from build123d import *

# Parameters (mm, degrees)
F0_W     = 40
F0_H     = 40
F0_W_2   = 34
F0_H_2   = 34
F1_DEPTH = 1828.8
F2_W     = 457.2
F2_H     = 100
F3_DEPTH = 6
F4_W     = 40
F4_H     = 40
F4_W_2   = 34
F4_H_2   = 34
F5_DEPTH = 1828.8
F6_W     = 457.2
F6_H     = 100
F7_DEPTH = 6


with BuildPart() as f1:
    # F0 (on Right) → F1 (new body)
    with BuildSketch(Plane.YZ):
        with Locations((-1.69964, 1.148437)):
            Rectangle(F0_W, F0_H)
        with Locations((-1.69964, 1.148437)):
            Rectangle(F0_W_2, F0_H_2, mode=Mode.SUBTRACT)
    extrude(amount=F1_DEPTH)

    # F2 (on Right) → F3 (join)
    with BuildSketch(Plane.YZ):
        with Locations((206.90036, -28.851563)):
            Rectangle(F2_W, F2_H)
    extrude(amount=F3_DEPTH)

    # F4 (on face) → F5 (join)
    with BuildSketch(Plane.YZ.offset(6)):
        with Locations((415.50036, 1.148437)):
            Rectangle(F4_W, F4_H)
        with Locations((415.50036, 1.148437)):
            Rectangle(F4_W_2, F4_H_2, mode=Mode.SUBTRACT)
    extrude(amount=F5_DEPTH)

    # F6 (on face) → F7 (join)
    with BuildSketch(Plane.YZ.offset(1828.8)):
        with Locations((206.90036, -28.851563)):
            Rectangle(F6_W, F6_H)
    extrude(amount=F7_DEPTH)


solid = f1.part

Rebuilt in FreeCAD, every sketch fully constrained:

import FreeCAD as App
import Part
import Sketcher

V = App.Vector


def add_polygon(sketch, points):
    """Adds a closed chain of lines whose ends are joined by coincident constraints."""
    first, n = sketch.GeometryCount, len(points)
    for a, b in zip(points, points[1:] + points[:1]):
        sketch.addGeometry(Part.LineSegment(App.Vector(*a, 0), App.Vector(*b, 0)), False)
    for i in range(n):
        sketch.addConstraint(Sketcher.Constraint("Coincident", first + i, 2, first + (i + 1) % n, 1))

doc = App.newDocument("Part")
body = doc.addObject("PartDesign::Body", "Body")

# Sketch on YZ plane
sketch1 = doc.addObject("Sketcher::SketchObject", "Sketch")
body.addObject(sketch1)
sketch1.AttachmentSupport = (doc.YZ_Plane, [""])
sketch1.MapMode = "FlatFace"
add_polygon(sketch1, [(-22, 21), (-22, -19), (18, -19), (18, 21)])  # lines 0-3
add_polygon(sketch1, [(15, -16), (-19, -16), (-19, 18), (15, 18)])  # lines 4-7
sketch1.addConstraint(Sketcher.Constraint("Vertical", 0))
sketch1.addConstraint(Sketcher.Constraint("Horizontal", 1))
sketch1.addConstraint(Sketcher.Constraint("Vertical", 2))
sketch1.addConstraint(Sketcher.Constraint("Horizontal", 3))
sketch1.addConstraint(Sketcher.Constraint("Horizontal", 4))
sketch1.addConstraint(Sketcher.Constraint("Vertical", 5))
sketch1.addConstraint(Sketcher.Constraint("Horizontal", 6))
sketch1.addConstraint(Sketcher.Constraint("Vertical", 7))
sketch1.addConstraint(Sketcher.Constraint("Equal", 3, 0))
sketch1.addConstraint(Sketcher.Constraint("Equal", 6, 5))
sketch1.addConstraint(Sketcher.Constraint("DistanceX", 1, 1, 1, 2, 40.0))
sketch1.addConstraint(Sketcher.Constraint("DistanceX", 4, 2, 4, 1, 34.0))
sketch1.addConstraint(Sketcher.Constraint("DistanceX", 0, 2, 4, 2, 3.0))
sketch1.addConstraint(Sketcher.Constraint("DistanceY", 0, 2, 4, 2, 3.0))
sketch1.addConstraint(Sketcher.Constraint("DistanceX", 0, 2, -1, 1, 21.69964))
sketch1.addConstraint(Sketcher.Constraint("DistanceY", 0, 2, -1, 1, 18.851563))
pad1 = doc.addObject("PartDesign::Pad", "Pad")
body.addObject(pad1)
pad1.Profile = sketch1
pad1.Length = 1828.8

# Sketch on YZ plane
sketch2 = doc.addObject("Sketcher::SketchObject", "Sketch001")
body.addObject(sketch2)
sketch2.AttachmentSupport = (doc.YZ_Plane, [""])
sketch2.MapMode = "FlatFace"
add_polygon(sketch2, [(-22, 21), (-22, -79), (436, -79), (436, 21)])  # lines 0-3
sketch2.addConstraint(Sketcher.Constraint("Vertical", 0))
sketch2.addConstraint(Sketcher.Constraint("Horizontal", 1))
sketch2.addConstraint(Sketcher.Constraint("Vertical", 2))
sketch2.addConstraint(Sketcher.Constraint("Horizontal", 3))
sketch2.addConstraint(Sketcher.Constraint("DistanceY", 0, 2, 0, 1, 100.0))
sketch2.addConstraint(Sketcher.Constraint("DistanceX", 1, 1, 1, 2, 457.2))
sketch2.addConstraint(Sketcher.Constraint("DistanceX", 0, 2, -1, 1, 21.69964))
sketch2.addConstraint(Sketcher.Constraint("DistanceY", 0, 2, -1, 1, 78.851563))
pad2 = doc.addObject("PartDesign::Pad", "Pad001")
body.addObject(pad2)
pad2.Profile = sketch2
pad2.Length = 6

# Sketch on YZ plane
sketch3 = doc.addObject("Sketcher::SketchObject", "Sketch002")
body.addObject(sketch3)
sketch3.AttachmentSupport = (doc.YZ_Plane, [""])
sketch3.MapMode = "FlatFace"
sketch3.AttachmentOffset = App.Placement(V(0, 0, 6), App.Rotation())
add_polygon(sketch3, [(396, 21), (396, -19), (436, -19), (436, 21)])  # lines 0-3
add_polygon(sketch3, [(433, -16), (399, -16), (399, 18), (433, 18)])  # lines 4-7
sketch3.addConstraint(Sketcher.Constraint("Vertical", 0))
sketch3.addConstraint(Sketcher.Constraint("Horizontal", 1))
sketch3.addConstraint(Sketcher.Constraint("Vertical", 2))
sketch3.addConstraint(Sketcher.Constraint("Horizontal", 3))
sketch3.addConstraint(Sketcher.Constraint("Horizontal", 4))
sketch3.addConstraint(Sketcher.Constraint("Vertical", 5))
sketch3.addConstraint(Sketcher.Constraint("Horizontal", 6))
sketch3.addConstraint(Sketcher.Constraint("Vertical", 7))
sketch3.addConstraint(Sketcher.Constraint("Equal", 3, 0))
sketch3.addConstraint(Sketcher.Constraint("Equal", 6, 5))
sketch3.addConstraint(Sketcher.Constraint("DistanceX", 1, 1, 1, 2, 40.0))
sketch3.addConstraint(Sketcher.Constraint("DistanceX", 4, 2, 4, 1, 34.0))
sketch3.addConstraint(Sketcher.Constraint("DistanceX", 0, 2, 4, 2, 3.0))
sketch3.addConstraint(Sketcher.Constraint("DistanceY", 0, 2, 4, 2, 3.0))
sketch3.addConstraint(Sketcher.Constraint("DistanceX", -1, 1, 0, 2, 395.50036))
sketch3.addConstraint(Sketcher.Constraint("DistanceY", 0, 2, -1, 1, 18.851563))
pad3 = doc.addObject("PartDesign::Pad", "Pad002")
body.addObject(pad3)
pad3.Profile = sketch3
pad3.Length = 1828.8

# Sketch on YZ plane
sketch4 = doc.addObject("Sketcher::SketchObject", "Sketch003")
body.addObject(sketch4)
sketch4.AttachmentSupport = (doc.YZ_Plane, [""])
sketch4.MapMode = "FlatFace"
sketch4.AttachmentOffset = App.Placement(V(0, 0, 1828.8), App.Rotation())
add_polygon(sketch4, [(-22, 21), (-22, -79), (436, -79), (436, 21)])  # lines 0-3
sketch4.addConstraint(Sketcher.Constraint("Vertical", 0))
sketch4.addConstraint(Sketcher.Constraint("Horizontal", 1))
sketch4.addConstraint(Sketcher.Constraint("Vertical", 2))
sketch4.addConstraint(Sketcher.Constraint("Horizontal", 3))
sketch4.addConstraint(Sketcher.Constraint("DistanceY", 0, 2, 0, 1, 100.0))
sketch4.addConstraint(Sketcher.Constraint("DistanceX", 1, 1, 1, 2, 457.2))
sketch4.addConstraint(Sketcher.Constraint("DistanceX", 0, 2, -1, 1, 21.69964))
sketch4.addConstraint(Sketcher.Constraint("DistanceY", 0, 2, -1, 1, 78.851563))
pad4 = doc.addObject("PartDesign::Pad", "Pad003")
body.addObject(pad4)
pad4.Profile = sketch4
pad4.Length = 6

doc.recompute()
